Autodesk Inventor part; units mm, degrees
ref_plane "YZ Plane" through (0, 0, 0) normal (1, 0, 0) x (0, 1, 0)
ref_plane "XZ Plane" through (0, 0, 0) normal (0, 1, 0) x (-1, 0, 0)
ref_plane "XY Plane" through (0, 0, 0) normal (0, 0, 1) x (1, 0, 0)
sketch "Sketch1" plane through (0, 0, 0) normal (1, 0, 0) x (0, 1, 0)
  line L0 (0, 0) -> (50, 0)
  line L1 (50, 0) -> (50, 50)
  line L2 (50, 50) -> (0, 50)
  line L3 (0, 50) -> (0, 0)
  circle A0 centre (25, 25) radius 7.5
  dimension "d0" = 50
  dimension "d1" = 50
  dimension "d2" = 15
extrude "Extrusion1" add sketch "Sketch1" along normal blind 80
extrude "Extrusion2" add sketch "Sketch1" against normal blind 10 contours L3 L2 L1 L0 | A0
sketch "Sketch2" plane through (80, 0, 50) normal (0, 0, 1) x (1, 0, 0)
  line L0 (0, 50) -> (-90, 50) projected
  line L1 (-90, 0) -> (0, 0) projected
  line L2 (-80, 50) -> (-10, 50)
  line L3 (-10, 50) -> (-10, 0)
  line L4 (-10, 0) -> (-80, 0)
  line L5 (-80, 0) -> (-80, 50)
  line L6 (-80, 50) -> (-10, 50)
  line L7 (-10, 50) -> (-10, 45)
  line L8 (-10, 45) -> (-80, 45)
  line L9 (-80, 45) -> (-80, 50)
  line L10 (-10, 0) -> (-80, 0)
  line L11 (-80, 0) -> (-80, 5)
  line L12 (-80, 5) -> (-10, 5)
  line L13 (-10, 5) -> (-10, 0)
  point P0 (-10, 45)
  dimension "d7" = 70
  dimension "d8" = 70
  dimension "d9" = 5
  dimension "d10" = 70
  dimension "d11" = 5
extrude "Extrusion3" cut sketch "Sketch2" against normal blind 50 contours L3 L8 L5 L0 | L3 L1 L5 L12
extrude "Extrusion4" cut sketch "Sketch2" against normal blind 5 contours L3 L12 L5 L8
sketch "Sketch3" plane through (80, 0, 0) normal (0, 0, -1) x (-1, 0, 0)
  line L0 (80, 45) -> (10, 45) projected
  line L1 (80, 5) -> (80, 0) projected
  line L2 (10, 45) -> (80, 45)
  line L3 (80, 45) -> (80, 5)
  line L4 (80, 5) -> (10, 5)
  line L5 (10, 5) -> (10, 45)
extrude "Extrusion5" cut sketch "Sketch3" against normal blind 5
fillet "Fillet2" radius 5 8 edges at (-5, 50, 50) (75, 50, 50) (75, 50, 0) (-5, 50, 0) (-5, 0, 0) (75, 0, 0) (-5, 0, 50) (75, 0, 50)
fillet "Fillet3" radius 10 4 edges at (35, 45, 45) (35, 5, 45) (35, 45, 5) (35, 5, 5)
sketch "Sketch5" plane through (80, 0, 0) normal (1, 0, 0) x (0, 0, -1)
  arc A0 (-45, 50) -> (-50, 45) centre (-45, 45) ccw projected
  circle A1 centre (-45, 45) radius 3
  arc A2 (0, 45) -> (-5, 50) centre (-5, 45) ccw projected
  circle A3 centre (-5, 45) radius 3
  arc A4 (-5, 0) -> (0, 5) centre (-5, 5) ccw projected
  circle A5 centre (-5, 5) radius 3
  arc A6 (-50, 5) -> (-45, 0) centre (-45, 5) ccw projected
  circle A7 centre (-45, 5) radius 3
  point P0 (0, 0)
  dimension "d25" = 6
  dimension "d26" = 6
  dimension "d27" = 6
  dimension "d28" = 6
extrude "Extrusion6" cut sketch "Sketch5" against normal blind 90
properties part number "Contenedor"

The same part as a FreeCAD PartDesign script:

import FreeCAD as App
import Part
import Sketcher

V = App.Vector
Q = App.Units.Quantity


def edges_at(feature, points):
    """Names of the edges that pass closest to the given points."""
    edges = feature.Shape.Edges
    near = lambda p: min(range(len(edges)), key=lambda i: edges[i].distToShape(Part.Vertex(*p))[0])
    return sorted({f"Edge{near(p) + 1}" for p in points})

doc = App.newDocument("Part")
body = doc.addObject("PartDesign::Body", "Body")

# Sketch on YZ plane
sketch1 = body.newObject("Sketcher::SketchObject", "Sketch")
sketch1.AttachmentSupport = (doc.getObject("YZ_Plane"), [""])
sketch1.MapMode = "FlatFace"
sketch1.addGeometry(Part.LineSegment(V(0, 50, 0), V(0, 0, 0)), False)
sketch1.addGeometry(Part.LineSegment(V(0, 0, 0), V(50, 0, 0)), False)
sketch1.addGeometry(Part.LineSegment(V(50, 0, 0), V(50, 50, 0)), False)
sketch1.addGeometry(Part.LineSegment(V(50, 50, 0), V(0, 50, 0)), False)
sketch1.addGeometry(Part.Circle(V(25, 25, 0), V(0, 0, 1), 7.5), False)
sketch1.addConstraint(Sketcher.Constraint("Coincident", 0, 2, 1, 1))
sketch1.addConstraint(Sketcher.Constraint("Coincident", 1, 2, 2, 1))
sketch1.addConstraint(Sketcher.Constraint("Coincident", 2, 2, 3, 1))
sketch1.addConstraint(Sketcher.Constraint("Coincident", 3, 2, 0, 1))
sketch1.addConstraint(Sketcher.Constraint("Vertical", 0))
sketch1.addConstraint(Sketcher.Constraint("Horizontal", 1))
sketch1.addConstraint(Sketcher.Constraint("Vertical", 2))
sketch1.addConstraint(Sketcher.Constraint("Horizontal", 3))
sketch1.addConstraint(Sketcher.Constraint("Coincident", 0, 2, -1, 1))
sketch1.addConstraint(Sketcher.Constraint("Equal", 3, 0))
sketch1.addConstraint(Sketcher.Constraint("Diameter", 4, Q("15 mm")))
sketch1.addConstraint(Sketcher.Constraint("DistanceX", 1, 1, 1, 2, Q("50 mm")))
sketch1.addConstraint(Sketcher.Constraint("DistanceX", -1, 1, 4, 3, Q("25 mm")))
sketch1.addConstraint(Sketcher.Constraint("DistanceY", -1, 1, 4, 3, Q("25 mm")))
pad1 = body.newObject("PartDesign::Pad", "Pad")
pad1.Profile = sketch1
pad1.Length = 80

# Sketch on YZ plane
sketch2 = body.newObject("Sketcher::SketchObject", "Sketch001")
sketch2.AttachmentSupport = (doc.getObject("YZ_Plane"), [""])
sketch2.MapMode = "FlatFace"
sketch2.addGeometry(Part.LineSegment(V(0, 50, 0), V(0, 0, 0)), False)
sketch2.addGeometry(Part.LineSegment(V(0, 0, 0), V(50, 0, 0)), False)
sketch2.addGeometry(Part.LineSegment(V(50, 0, 0), V(50, 50, 0)), False)
sketch2.addGeometry(Part.LineSegment(V(50, 50, 0), V(0, 50, 0)), False)
sketch2.addConstraint(Sketcher.Constraint("Coincident", 0, 2, 1, 1))
sketch2.addConstraint(Sketcher.Constraint("Coincident", 1, 2, 2, 1))
sketch2.addConstraint(Sketcher.Constraint("Coincident", 2, 2, 3, 1))
sketch2.addConstraint(Sketcher.Constraint("Coincident", 3, 2, 0, 1))
sketch2.addConstraint(Sketcher.Constraint("Vertical", 0))
sketch2.addConstraint(Sketcher.Constraint("Horizontal", 1))
sketch2.addConstraint(Sketcher.Constraint("Vertical", 2))
sketch2.addConstraint(Sketcher.Constraint("Horizontal", 3))
sketch2.addConstraint(Sketcher.Constraint("Coincident", 0, 2, -1, 1))
sketch2.addConstraint(Sketcher.Constraint("Equal", 3, 0))
sketch2.addConstraint(Sketcher.Constraint("DistanceX", 1, 1, 1, 2, Q("50 mm")))
pad2 = body.newObject("PartDesign::Pad", "Pad001")
pad2.Profile = sketch2
pad2.Length = 10
pad2.Reversed = True

# Sketch on XY plane
sketch3 = body.newObject("Sketcher::SketchObject", "Sketch002")
sketch3.AttachmentSupport = (doc.getObject("XY_Plane"), [""])
sketch3.MapMode = "FlatFace"
sketch3.AttachmentOffset = App.Placement(V(0, 0, 50), App.Rotation())
sketch3.addGeometry(Part.LineSegment(V(70, 45, 0), V(70, 50, 0)), False)
sketch3.addGeometry(Part.LineSegment(V(70, 50, 0), V(0, 50, 0)), False)
sketch3.addGeometry(Part.LineSegment(V(0, 50, 0), V(0, 45, 0)), False)
sketch3.addGeometry(Part.LineSegment(V(0, 45, 0), V(70, 45, 0)), False)
sketch3.addGeometry(Part.LineSegment(V(70, 0, 0), V(70, 5, 0)), False)
sketch3.addGeometry(Part.LineSegment(V(70, 5, 0), V(0, 5, 0)), False)
sketch3.addGeometry(Part.LineSegment(V(0, 5, 0), V(0, 0, 0)), False)
sketch3.addGeometry(Part.LineSegment(V(0, 0, 0), V(70, 0, 0)), False)
sketch3.addConstraint(Sketcher.Constraint("Coincident", 0, 2, 1, 1))
sketch3.addConstraint(Sketcher.Constraint("Coincident", 1, 2, 2, 1))
sketch3.addConstraint(Sketcher.Constraint("Coincident", 2, 2, 3, 1))
sketch3.addConstraint(Sketcher.Constraint("Coincident", 3, 2, 0, 1))
sketch3.addConstraint(Sketcher.Constraint("Coincident", 4, 2, 5, 1))
sketch3.addConstraint(Sketcher.Constraint("Coincident", 5, 2, 6, 1))
sketch3.addConstraint(Sketcher.Constraint("Coincident", 6, 2, 7, 1))
sketch3.addConstraint(Sketcher.Constraint("Coincident", 7, 2, 4, 1))
sketch3.addConstraint(Sketcher.Constraint("Vertical", 0))
sketch3.addConstraint(Sketcher.Constraint("Horizontal", 1))
sketch3.addConstraint(Sketcher.Constraint("Vertical", 2))
sketch3.addConstraint(Sketcher.Constraint("Horizontal", 3))
sketch3.addConstraint(Sketcher.Constraint("Vertical", 4))
sketch3.addConstraint(Sketcher.Constraint("Horizontal", 5))
sketch3.addConstraint(Sketcher.Constraint("Vertical", 6))
sketch3.addConstraint(Sketcher.Constraint("Horizontal", 7))
sketch3.addConstraint(Sketcher.Constraint("Coincident", 6, 2, -1, 1))
sketch3.addConstraint(Sketcher.Constraint("PointOnObject", 1, 2, -2))
sketch3.addConstraint(Sketcher.Constraint("Vertical", 3, 2, 4, 2))
sketch3.addConstraint(Sketcher.Constraint("Equal", 2, 4))
sketch3.addConstraint(Sketcher.Constraint("DistanceX", 1, 2, 1, 1, Q("70 mm")))
sketch3.addConstraint(Sketcher.Constraint("DistanceY", 0, 1, 0, 2, Q("5 mm")))
sketch3.addConstraint(Sketcher.Constraint("DistanceY", -1, 1, 0, 2, Q("50 mm")))
pocket1 = body.newObject("PartDesign::Pocket", "Pocket")
pocket1.Profile = sketch3
pocket1.Length = 50

# Sketch on XY plane
sketch4 = body.newObject("Sketcher::SketchObject", "Sketch003")
sketch4.AttachmentSupport = (doc.getObject("XY_Plane"), [""])
sketch4.MapMode = "FlatFace"
sketch4.AttachmentOffset = App.Placement(V(0, 0, 50), App.Rotation())
sketch4.addGeometry(Part.LineSegment(V(70, 5, 0), V(70, 45, 0)), False)
sketch4.addGeometry(Part.LineSegment(V(70, 45, 0), V(0, 45, 0)), False)
sketch4.addGeometry(Part.LineSegment(V(0, 45, 0), V(0, 5, 0)), False)
sketch4.addGeometry(Part.LineSegment(V(0, 5, 0), V(70, 5, 0)), False)
sketch4.addConstraint(Sketcher.Constraint("Coincident", 0, 2, 1, 1))
sketch4.addConstraint(Sketcher.Constraint("Coincident", 1, 2, 2, 1))
sketch4.addConstraint(Sketcher.Constraint("Coincident", 2, 2, 3, 1))
sketch4.addConstraint(Sketcher.Constraint("Coincident", 3, 2, 0, 1))
sketch4.addConstraint(Sketcher.Constraint("Vertical", 0))
sketch4.addConstraint(Sketcher.Constraint("Horizontal", 1))
sketch4.addConstraint(Sketcher.Constraint("Vertical", 2))
sketch4.addConstraint(Sketcher.Constraint("Horizontal", 3))
sketch4.addConstraint(Sketcher.Constraint("PointOnObject", 1, 2, -2))
sketch4.addConstraint(Sketcher.Constraint("DistanceX", 1, 2, 1, 1, Q("70 mm")))
sketch4.addConstraint(Sketcher.Constraint("DistanceY", -1, 1, 2, 2, Q("5 mm")))
sketch4.addConstraint(Sketcher.Constraint("DistanceY", 0, 1, 0, 2, Q("40 mm")))
pocket2 = body.newObject("PartDesign::Pocket", "Pocket001")
pocket2.Profile = sketch4
pocket2.Length = 5

# Sketch on XY plane
sketch5 = body.newObject("Sketcher::SketchObject", "Sketch004")
sketch5.AttachmentSupport = (doc.getObject("XY_Plane"), [""])
sketch5.MapMode = "FlatFace"
sketch5.addGeometry(Part.LineSegment(V(0, 5, 0), V(0, 45, 0)), False)
sketch5.addGeometry(Part.LineSegment(V(0, 45, 0), V(70, 45, 0)), False)
sketch5.addGeometry(Part.LineSegment(V(70, 45, 0), V(70, 5, 0)), False)
sketch5.addGeometry(Part.LineSegment(V(70, 5, 0), V(0, 5, 0)), False)
sketch5.addConstraint(Sketcher.Constraint("Coincident", 0, 2, 1, 1))
sketch5.addConstraint(Sketcher.Constraint("Coincident", 1, 2, 2, 1))
sketch5.addConstraint(Sketcher.Constraint("Coincident", 2, 2, 3, 1))
sketch5.addConstraint(Sketcher.Constraint("Coincident", 3, 2, 0, 1))
sketch5.addConstraint(Sketcher.Constraint("Vertical", 0))
sketch5.addConstraint(Sketcher.Constraint("Horizontal", 1))
sketch5.addConstraint(Sketcher.Constraint("Vertical", 2))
sketch5.addConstraint(Sketcher.Constraint("Horizontal", 3))
sketch5.addConstraint(Sketcher.Constraint("PointOnObject", 0, 2, -2))
sketch5.addConstraint(Sketcher.Constraint("DistanceX", 1, 1, 1, 2, Q("70 mm")))
sketch5.addConstraint(Sketcher.Constraint("DistanceY", 0, 1, 0, 2, Q("40 mm")))
sketch5.addConstraint(Sketcher.Constraint("DistanceY", -1, 1, 0, 2, Q("45 mm")))
pocket3 = body.newObject("PartDesign::Pocket", "Pocket002")
pocket3.Profile = sketch5
pocket3.Length = 5
pocket3.Reversed = True
doc.recompute()

fillet = body.newObject("PartDesign::Fillet", "Fillet")
fillet.Base = (pocket3, edges_at(pocket3, [
    (-5, 50, 50),
    (75, 50, 50),
    (75, 50, 0),
    (-5, 50, 0),
    (-5, 0, 0),
    (75, 0, 0),
    (-5, 0, 50),
    (75, 0, 50),
]))
fillet.Radius = 5
doc.recompute()

fillet2 = body.newObject("PartDesign::Fillet", "Fillet001")
fillet2.Base = (fillet, edges_at(fillet, [
    (35, 45, 45),
    (35, 5, 45),
    (35, 45, 5),
    (35, 5, 5),
]))
fillet2.Radius = 10

# Sketch on YZ plane
sketch6 = body.newObject("Sketcher::SketchObject", "Sketch005")
sketch6.AttachmentSupport = (doc.getObject("YZ_Plane"), [""])
sketch6.MapMode = "FlatFace"
sketch6.AttachmentOffset = App.Placement(V(0, 0, 80), App.Rotation())
sketch6.addGeometry(Part.Circle(V(45, 45, 0), V(0, 0, 1), 3), False)
sketch6.addGeometry(Part.Circle(V(45, 5, 0), V(0, 0, 1), 3), False)
sketch6.addGeometry(Part.Circle(V(5, 5, 0), V(0, 0, 1), 3), False)
sketch6.addGeometry(Part.Circle(V(5, 45, 0), V(0, 0, 1), 3), False)
sketch6.addConstraint(Sketcher.Constraint("Equal", 0, 1))
sketch6.addConstraint(Sketcher.Constraint("Equal", 1, 2))
sketch6.addConstraint(Sketcher.Constraint("Equal", 2, 3))
sketch6.addConstraint(Sketcher.Constraint("Horizontal", 1, 3, 2, 3))
sketch6.addConstraint(Sketcher.Constraint("Horizontal", 0, 3, 3, 3))
sketch6.addConstraint(Sketcher.Constraint("Vertical", 0, 3, 1, 3))
sketch6.addConstraint(Sketcher.Constraint("Vertical", 2, 3, 3, 3))
sketch6.addConstraint(Sketcher.Constraint("Diameter", 0, Q("6 mm")))
sketch6.addConstraint(Sketcher.Constraint("DistanceX", -1, 1, 0, 3, Q("45 mm")))
sketch6.addConstraint(Sketcher.Constraint("DistanceY", -1, 1, 0, 3, Q("45 mm")))
sketch6.addConstraint(Sketcher.Constraint("DistanceY", -1, 1, 1, 3, Q("5 mm")))
sketch6.addConstraint(Sketcher.Constraint("DistanceX", -1, 1, 2, 3, Q("5 mm")))
pocket4 = body.newObject("PartDesign::Pocket", "Pocket003")
pocket4.Profile = sketch6
pocket4.Length = 90

doc.recompute()
